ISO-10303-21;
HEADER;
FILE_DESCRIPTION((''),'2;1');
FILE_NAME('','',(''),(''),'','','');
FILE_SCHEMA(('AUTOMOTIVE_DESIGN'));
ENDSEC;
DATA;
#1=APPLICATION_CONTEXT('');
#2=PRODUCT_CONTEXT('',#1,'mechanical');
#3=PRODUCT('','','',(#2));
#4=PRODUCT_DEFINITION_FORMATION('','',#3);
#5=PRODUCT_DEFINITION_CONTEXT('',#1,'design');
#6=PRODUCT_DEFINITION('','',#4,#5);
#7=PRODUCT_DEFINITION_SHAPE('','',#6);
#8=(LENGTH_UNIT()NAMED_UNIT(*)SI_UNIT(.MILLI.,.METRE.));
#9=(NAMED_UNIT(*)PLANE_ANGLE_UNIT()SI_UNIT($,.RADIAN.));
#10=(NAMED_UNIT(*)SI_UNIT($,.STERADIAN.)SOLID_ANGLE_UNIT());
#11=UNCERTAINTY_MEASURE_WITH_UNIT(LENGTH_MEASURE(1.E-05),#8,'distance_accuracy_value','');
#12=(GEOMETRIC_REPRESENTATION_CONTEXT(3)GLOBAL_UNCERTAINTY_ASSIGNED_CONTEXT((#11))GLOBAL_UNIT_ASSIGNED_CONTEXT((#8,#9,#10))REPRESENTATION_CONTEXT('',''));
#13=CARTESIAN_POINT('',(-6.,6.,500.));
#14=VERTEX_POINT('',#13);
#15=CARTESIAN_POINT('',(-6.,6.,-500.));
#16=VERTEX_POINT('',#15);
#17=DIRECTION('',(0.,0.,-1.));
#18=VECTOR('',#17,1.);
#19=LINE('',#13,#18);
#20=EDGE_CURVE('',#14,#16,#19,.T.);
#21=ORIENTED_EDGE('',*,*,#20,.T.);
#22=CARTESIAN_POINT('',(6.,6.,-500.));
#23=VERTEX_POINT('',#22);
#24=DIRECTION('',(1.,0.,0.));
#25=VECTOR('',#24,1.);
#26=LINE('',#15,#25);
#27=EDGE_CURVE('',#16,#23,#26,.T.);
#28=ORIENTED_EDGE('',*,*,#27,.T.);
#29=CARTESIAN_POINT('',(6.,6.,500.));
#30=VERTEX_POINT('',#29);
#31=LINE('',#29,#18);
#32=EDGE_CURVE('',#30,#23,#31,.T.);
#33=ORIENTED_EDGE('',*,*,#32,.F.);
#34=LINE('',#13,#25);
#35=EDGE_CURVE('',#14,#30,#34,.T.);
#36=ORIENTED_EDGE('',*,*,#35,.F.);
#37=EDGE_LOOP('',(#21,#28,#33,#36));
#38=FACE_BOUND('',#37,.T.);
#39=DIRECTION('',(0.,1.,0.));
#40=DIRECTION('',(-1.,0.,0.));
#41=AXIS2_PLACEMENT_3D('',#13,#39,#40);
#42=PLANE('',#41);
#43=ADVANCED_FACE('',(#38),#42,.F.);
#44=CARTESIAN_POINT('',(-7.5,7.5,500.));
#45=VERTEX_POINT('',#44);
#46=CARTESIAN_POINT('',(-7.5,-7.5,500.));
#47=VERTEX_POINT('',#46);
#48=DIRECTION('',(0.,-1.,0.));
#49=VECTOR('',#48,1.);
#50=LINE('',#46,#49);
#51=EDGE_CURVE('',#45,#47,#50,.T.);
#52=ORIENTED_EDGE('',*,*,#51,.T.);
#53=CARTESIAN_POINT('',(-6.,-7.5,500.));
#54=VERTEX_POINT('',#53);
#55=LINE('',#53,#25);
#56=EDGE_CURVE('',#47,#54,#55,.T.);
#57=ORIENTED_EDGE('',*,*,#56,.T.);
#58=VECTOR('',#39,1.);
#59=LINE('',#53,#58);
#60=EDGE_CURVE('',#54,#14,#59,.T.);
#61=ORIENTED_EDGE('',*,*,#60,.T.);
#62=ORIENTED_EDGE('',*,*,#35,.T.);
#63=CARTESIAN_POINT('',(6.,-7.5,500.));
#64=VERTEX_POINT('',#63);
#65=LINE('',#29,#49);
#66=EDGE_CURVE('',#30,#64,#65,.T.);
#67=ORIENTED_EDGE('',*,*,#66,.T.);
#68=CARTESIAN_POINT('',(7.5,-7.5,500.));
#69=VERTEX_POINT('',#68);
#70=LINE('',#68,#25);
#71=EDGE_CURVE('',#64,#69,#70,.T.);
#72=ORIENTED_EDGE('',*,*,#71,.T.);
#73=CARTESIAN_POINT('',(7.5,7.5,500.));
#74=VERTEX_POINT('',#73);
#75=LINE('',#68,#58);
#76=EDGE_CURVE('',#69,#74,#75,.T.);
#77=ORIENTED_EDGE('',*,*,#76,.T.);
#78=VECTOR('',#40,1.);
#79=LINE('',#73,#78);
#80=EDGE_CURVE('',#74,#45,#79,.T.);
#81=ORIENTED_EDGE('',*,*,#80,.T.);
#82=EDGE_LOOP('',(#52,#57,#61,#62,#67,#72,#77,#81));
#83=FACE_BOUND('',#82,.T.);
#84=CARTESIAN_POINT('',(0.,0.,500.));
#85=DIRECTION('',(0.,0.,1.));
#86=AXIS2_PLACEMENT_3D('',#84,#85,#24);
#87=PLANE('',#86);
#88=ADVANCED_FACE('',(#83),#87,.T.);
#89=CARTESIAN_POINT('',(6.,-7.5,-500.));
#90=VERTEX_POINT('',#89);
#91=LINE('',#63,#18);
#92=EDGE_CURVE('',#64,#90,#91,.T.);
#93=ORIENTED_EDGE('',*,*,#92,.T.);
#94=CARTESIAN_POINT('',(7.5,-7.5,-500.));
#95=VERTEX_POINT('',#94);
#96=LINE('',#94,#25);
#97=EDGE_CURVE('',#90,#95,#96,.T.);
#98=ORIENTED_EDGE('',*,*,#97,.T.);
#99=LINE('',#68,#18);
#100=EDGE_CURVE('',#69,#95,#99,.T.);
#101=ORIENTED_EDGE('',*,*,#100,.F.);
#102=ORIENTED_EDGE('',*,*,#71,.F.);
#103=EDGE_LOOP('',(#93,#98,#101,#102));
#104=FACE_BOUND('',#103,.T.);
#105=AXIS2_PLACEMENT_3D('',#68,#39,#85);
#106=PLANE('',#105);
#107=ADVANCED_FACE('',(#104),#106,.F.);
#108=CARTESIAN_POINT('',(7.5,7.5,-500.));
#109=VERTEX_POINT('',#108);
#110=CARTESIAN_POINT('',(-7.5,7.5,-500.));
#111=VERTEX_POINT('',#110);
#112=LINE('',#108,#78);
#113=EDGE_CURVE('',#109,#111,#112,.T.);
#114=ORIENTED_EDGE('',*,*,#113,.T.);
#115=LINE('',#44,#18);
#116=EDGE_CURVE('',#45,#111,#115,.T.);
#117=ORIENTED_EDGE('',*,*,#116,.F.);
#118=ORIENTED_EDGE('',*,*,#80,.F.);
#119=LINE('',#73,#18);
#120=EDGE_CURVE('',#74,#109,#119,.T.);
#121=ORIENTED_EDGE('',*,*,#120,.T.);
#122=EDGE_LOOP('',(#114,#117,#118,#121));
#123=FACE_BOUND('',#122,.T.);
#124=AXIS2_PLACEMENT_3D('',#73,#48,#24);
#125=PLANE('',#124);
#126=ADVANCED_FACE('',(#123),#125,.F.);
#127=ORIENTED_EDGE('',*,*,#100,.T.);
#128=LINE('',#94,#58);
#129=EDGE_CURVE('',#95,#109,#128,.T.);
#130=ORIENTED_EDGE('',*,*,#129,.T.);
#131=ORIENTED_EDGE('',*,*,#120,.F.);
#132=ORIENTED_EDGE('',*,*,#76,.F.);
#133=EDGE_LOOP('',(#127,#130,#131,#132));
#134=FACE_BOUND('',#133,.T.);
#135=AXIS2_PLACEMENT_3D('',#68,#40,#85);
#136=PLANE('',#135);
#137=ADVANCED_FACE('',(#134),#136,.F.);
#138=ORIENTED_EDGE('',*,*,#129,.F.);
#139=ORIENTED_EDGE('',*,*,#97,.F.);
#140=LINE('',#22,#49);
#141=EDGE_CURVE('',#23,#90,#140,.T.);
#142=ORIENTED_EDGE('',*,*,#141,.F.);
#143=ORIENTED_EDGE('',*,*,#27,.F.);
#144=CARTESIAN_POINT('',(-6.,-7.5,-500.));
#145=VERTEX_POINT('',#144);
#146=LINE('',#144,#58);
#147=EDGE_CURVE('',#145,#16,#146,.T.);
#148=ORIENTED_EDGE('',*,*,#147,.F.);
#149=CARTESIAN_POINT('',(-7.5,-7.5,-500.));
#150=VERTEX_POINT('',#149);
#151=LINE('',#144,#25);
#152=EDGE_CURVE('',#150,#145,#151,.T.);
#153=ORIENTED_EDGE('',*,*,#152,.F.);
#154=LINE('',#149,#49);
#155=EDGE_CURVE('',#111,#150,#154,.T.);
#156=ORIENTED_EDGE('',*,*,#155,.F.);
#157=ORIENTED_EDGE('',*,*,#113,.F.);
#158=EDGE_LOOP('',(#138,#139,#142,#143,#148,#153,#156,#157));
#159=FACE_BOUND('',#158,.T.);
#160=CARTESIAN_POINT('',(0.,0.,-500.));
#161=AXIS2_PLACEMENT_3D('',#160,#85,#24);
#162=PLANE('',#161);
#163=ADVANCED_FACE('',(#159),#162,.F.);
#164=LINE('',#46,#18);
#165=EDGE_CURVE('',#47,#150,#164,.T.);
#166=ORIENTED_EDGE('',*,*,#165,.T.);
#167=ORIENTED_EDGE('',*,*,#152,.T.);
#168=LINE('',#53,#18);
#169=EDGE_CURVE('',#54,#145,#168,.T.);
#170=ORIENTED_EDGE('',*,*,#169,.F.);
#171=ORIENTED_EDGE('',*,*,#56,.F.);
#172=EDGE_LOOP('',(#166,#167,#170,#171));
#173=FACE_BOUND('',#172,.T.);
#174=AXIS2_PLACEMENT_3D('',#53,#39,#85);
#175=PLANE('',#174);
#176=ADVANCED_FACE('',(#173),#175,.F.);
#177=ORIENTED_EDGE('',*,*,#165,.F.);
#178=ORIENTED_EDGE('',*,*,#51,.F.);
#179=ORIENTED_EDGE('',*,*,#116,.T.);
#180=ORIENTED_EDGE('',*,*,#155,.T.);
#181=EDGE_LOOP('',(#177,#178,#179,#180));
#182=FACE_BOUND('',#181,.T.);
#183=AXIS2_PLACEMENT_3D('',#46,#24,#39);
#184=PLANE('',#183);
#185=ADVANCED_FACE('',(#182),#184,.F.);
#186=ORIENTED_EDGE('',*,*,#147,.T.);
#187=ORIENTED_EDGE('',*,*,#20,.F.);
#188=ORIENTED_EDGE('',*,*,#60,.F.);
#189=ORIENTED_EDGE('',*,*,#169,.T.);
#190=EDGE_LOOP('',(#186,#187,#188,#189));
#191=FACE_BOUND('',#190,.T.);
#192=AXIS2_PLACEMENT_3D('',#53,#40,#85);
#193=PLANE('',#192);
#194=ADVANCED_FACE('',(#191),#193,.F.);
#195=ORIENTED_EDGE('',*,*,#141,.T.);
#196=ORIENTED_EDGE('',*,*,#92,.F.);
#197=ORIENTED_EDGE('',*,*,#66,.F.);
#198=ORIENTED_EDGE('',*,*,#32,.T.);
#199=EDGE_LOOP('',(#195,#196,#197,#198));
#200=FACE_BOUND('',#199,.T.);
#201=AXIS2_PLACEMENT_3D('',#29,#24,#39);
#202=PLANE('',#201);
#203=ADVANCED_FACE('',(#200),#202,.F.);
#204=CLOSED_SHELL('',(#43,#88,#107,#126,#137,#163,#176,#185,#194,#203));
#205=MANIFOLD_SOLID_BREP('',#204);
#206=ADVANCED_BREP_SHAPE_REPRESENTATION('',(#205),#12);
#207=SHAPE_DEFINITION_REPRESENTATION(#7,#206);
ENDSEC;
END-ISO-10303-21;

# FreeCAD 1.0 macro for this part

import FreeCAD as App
import Part
import Sketcher
Q = App.Units.Quantity


def add_polygon(sketch, points):
    """Adds a closed chain of lines whose ends are joined by coincident constraints."""
    first, n = sketch.GeometryCount, len(points)
    for a, b in zip(points, points[1:] + points[:1]):
        sketch.addGeometry(Part.LineSegment(App.Vector(*a, 0), App.Vector(*b, 0)), False)
    for i in range(n):
        sketch.addConstraint(Sketcher.Constraint("Coincident", first + i, 2, first + (i + 1) % n, 1))

doc = App.newDocument("Part")
params = doc.addObject("Spreadsheet::Sheet", "Params")
for row, (alias, value) in enumerate([
    ("sketch1_width", "12 mm"),
    ("sketch1_width2", "15 mm"),
    ("sketch1_height", "13.5 mm"),
    ("pad1_length", "1000 mm"),
], start=1):
    params.set(f"A{row}", alias)
    params.set(f"B{row}", "=" + value)
    params.setAlias(f"B{row}", alias)

body = doc.addObject("PartDesign::Body", "Body")

# Sketch on XY plane
sketch1 = body.newObject("Sketcher::SketchObject", "Sketch")
sketch1.AttachmentSupport = (doc.getObject("XY_Plane"), [""])
sketch1.MapMode = "FlatFace"
add_polygon(sketch1, [(-6, -7.5), (-6, 6), (6, 6), (6, -7.5), (7.5, -7.5), (7.5, 7.5), (-7.5, 7.5), (-7.5, -7.5)])  # lines 0-7
sketch1.addConstraint([
    Sketcher.Constraint("Vertical", 0),
    Sketcher.Constraint("Horizontal", 1),
    Sketcher.Constraint("Vertical", 2),
    Sketcher.Constraint("Horizontal", 3),
    Sketcher.Constraint("Vertical", 4),
    Sketcher.Constraint("Horizontal", 5),
    Sketcher.Constraint("Vertical", 6),
    Sketcher.Constraint("Horizontal", 7),
    Sketcher.Constraint("Symmetric", 3, 2, 5, 2, -1, 1),
    Sketcher.Constraint("Symmetric", 2, 2, 7, 2, -2),
    Sketcher.Constraint("Equal", 5, 4),
    Sketcher.Constraint("DistanceX", 1, 1, 1, 2, Q("12 mm")),
    Sketcher.Constraint("DistanceX", 5, 2, 5, 1, Q("15 mm")),
    Sketcher.Constraint("DistanceY", 0, 1, 0, 2, Q("13.5 mm")),
])
sketch1.setExpression("Constraints[19]", "Params.sketch1_width")
sketch1.setExpression("Constraints[20]", "Params.sketch1_width2")
sketch1.setExpression("Constraints[21]", "Params.sketch1_height")
pad1 = body.newObject("PartDesign::Pad", "Pad")
pad1.Profile = sketch1
pad1.setExpression("Length", "Params.pad1_length")
pad1.Midplane = True

doc.recompute()
